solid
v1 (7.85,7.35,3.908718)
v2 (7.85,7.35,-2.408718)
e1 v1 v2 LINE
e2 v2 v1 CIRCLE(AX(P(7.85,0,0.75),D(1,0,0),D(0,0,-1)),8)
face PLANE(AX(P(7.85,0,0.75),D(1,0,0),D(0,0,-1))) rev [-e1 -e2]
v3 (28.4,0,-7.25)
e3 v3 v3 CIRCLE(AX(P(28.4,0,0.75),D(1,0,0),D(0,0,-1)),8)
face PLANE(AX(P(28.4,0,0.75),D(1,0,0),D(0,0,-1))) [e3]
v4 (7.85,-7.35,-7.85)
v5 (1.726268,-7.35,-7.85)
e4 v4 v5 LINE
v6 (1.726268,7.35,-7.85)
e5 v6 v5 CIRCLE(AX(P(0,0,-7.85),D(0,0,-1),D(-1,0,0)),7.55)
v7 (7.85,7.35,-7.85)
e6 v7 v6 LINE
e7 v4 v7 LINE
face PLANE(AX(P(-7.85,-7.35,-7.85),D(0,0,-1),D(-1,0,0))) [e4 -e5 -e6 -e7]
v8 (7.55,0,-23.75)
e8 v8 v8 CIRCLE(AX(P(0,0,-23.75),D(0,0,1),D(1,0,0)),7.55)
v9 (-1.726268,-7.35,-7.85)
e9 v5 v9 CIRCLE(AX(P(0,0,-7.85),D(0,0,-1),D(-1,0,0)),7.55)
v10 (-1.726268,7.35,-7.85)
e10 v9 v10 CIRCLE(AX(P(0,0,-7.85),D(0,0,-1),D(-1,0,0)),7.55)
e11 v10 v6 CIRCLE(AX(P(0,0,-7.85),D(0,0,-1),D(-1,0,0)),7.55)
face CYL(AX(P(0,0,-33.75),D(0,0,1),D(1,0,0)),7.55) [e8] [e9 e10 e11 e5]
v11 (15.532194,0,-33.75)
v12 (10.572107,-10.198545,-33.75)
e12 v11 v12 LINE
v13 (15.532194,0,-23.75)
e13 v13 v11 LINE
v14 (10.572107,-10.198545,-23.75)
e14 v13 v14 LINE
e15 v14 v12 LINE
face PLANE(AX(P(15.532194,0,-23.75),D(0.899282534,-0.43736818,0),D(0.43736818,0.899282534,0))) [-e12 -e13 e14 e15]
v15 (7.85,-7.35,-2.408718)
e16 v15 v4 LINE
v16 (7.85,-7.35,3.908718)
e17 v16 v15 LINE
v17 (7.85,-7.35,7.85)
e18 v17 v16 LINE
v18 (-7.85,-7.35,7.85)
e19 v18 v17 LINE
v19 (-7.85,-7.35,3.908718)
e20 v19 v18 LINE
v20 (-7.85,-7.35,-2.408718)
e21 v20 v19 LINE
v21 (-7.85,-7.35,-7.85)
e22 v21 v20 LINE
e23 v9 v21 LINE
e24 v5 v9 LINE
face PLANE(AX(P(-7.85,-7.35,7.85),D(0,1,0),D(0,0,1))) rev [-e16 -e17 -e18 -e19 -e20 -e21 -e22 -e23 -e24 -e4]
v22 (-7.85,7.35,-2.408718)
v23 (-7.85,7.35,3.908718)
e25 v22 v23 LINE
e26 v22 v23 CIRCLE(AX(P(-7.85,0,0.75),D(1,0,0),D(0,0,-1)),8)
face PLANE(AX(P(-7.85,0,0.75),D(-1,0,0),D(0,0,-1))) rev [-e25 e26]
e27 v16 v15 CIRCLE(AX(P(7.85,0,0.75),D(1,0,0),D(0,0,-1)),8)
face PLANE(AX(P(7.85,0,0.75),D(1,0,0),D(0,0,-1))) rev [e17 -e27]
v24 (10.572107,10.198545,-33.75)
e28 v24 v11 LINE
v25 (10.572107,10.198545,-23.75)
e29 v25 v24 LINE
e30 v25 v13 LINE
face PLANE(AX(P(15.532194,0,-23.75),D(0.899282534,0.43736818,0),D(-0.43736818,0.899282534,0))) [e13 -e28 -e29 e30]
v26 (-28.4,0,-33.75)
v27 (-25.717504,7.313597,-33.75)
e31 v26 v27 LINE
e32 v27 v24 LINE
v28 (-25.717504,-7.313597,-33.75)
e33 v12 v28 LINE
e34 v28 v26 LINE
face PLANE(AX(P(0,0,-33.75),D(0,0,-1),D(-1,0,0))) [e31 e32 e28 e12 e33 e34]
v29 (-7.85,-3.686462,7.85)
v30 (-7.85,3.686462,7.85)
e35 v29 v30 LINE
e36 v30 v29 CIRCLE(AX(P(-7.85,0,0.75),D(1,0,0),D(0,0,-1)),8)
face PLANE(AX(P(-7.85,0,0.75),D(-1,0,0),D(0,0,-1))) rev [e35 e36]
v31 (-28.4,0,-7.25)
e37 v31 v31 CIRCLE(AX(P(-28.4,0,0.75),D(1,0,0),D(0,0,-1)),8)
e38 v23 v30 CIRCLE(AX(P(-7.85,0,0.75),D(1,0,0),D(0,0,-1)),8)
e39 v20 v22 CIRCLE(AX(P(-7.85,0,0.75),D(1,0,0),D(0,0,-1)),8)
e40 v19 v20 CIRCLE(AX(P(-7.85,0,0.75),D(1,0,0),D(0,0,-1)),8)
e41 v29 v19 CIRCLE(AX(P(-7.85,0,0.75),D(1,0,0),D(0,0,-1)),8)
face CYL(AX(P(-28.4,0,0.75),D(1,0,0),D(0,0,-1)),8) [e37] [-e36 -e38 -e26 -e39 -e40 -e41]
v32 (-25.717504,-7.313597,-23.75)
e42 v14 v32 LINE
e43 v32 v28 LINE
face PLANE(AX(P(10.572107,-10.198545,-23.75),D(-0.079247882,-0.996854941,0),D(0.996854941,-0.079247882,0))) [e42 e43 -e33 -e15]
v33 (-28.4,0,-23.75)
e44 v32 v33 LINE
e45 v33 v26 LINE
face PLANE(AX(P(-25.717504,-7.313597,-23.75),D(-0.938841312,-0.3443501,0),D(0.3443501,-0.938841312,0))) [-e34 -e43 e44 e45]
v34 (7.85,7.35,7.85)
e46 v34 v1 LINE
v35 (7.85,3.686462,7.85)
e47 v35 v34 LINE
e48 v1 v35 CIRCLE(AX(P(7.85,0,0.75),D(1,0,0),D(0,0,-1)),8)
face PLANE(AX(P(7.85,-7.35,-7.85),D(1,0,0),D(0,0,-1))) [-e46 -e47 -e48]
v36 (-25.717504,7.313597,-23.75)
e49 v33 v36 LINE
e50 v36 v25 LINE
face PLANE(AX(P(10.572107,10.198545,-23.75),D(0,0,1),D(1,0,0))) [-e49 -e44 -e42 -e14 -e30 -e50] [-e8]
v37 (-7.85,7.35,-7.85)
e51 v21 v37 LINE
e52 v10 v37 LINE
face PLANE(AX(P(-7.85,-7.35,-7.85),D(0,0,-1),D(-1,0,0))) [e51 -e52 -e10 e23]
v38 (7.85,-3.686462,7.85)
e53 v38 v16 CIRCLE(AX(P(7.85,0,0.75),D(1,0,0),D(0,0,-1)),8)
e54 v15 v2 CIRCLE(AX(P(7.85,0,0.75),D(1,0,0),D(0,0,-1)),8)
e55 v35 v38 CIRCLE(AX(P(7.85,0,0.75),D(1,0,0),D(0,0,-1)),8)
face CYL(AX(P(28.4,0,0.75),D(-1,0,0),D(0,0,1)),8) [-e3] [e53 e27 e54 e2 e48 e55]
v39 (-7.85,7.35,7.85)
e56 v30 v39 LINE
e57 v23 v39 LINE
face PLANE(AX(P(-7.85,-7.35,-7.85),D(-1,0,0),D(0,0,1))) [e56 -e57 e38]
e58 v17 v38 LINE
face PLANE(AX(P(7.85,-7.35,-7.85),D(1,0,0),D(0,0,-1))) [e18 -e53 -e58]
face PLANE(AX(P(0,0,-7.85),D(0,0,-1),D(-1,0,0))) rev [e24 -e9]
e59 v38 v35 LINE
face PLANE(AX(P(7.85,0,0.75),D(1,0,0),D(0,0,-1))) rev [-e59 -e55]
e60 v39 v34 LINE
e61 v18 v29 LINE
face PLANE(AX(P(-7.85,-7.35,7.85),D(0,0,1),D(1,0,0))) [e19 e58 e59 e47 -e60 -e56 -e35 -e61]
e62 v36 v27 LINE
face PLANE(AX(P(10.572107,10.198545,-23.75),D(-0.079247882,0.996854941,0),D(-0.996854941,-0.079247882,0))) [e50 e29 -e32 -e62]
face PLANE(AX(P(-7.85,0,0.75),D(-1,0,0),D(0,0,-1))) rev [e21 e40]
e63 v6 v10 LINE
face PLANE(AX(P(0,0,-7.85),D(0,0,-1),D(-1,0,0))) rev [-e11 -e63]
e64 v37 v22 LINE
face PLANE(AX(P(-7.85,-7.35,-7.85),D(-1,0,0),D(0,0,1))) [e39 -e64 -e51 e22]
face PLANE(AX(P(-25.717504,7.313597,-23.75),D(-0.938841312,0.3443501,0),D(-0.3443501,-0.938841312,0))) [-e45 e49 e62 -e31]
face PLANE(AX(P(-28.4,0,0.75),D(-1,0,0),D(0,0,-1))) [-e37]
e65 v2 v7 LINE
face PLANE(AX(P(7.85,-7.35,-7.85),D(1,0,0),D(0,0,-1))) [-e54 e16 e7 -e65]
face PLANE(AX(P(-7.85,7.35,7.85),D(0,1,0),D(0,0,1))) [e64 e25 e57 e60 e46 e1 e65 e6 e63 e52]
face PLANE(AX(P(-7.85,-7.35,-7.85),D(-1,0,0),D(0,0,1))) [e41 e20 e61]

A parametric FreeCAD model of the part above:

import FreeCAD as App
import Part
import Sketcher


def add_polygon(sketch, points):
    """Adds a closed chain of lines whose ends are joined by coincident constraints."""
    first, n = sketch.GeometryCount, len(points)
    for a, b in zip(points, points[1:] + points[:1]):
        sketch.addGeometry(Part.LineSegment(App.Vector(*a, 0), App.Vector(*b, 0)), False)
    for i in range(n):
        sketch.addConstraint(Sketcher.Constraint("Coincident", first + i, 2, first + (i + 1) % n, 1))

doc = App.newDocument("Part")
body = doc.addObject("PartDesign::Body", "Body")

# Sketch on XZ plane
sketch1 = body.newObject("Sketcher::SketchObject", "Sketch")
sketch1.AttachmentSupport = (doc.getObject("XZ_Plane"), [""])
sketch1.MapMode = "FlatFace"
add_polygon(sketch1, [(-8, -8), (-8, 8), (8, 8), (8, -8)])  # lines 0-3
sketch1.addConstraint([
    Sketcher.Constraint("Vertical", 0),
    Sketcher.Constraint("Horizontal", 1),
    Sketcher.Constraint("Vertical", 2),
    Sketcher.Constraint("Horizontal", 3),
    Sketcher.Constraint("Symmetric", 0, 2, 2, 2, -1, 1),
    Sketcher.Constraint("Equal", 3, 0),
    Sketcher.Constraint("DistanceX", 1, 1, 1, 2, 15.7),
])
pad1 = body.newObject("PartDesign::Pad", "Pad")
pad1.Profile = sketch1
pad1.Type = "TwoLengths"
pad1.Length = 7.35
pad1.Length2 = 7.35
pad1.Reversed = True

# Sketch on YZ plane
sketch2 = body.newObject("Sketcher::SketchObject", "Sketch001")
sketch2.AttachmentSupport = (doc.getObject("YZ_Plane"), [""])
sketch2.MapMode = "FlatFace"
sketch2.AttachmentOffset = App.Placement(App.Vector(0, 0, 7.85), App.Rotation())
sketch2.addGeometry(Part.Circle(App.Vector(0, 1, 0), App.Vector(0, 0, 1), 8), False)
sketch2.addConstraint([
    Sketcher.Constraint("PointOnObject", 0, 3, -2),
    Sketcher.Constraint("Diameter", 0, 16.0),
    Sketcher.Constraint("DistanceY", -1, 1, 0, 3, 0.75),
])
pad2 = body.newObject("PartDesign::Pad", "Pad001")
pad2.Profile = sketch2
pad2.Length = 20.55

# Sketch on XY plane
sketch3 = body.newObject("Sketcher::SketchObject", "Sketch002")
sketch3.AttachmentSupport = (doc.getObject("XY_Plane"), [""])
sketch3.MapMode = "FlatFace"
sketch3.AttachmentOffset = App.Placement(App.Vector(0, 0, -7.85), App.Rotation())
sketch3.addGeometry(Part.Circle(App.Vector(0, 0, 0), App.Vector(0, 0, 1), 8), False)
sketch3.addConstraint([
    Sketcher.Constraint("Coincident", 0, 3, -1, 1),
    Sketcher.Constraint("Diameter", 0, 15.1),
])
pad3 = body.newObject("PartDesign::Pad", "Pad002")
pad3.Profile = sketch3
pad3.Length = 25.9
pad3.Reversed = True

# Sketch on XY plane
sketch4 = body.newObject("Sketcher::SketchObject", "Sketch003")
sketch4.AttachmentSupport = (doc.getObject("XY_Plane"), [""])
sketch4.MapMode = "FlatFace"
sketch4.AttachmentOffset = App.Placement(App.Vector(0, 0, -33.75), App.Rotation())
add_polygon(sketch4, [(16, 0), (11, -10), (-26, -7), (-28, 0), (-26, 7), (11, 10)])  # lines 0-5
sketch4.addConstraint([
    Sketcher.Constraint("Symmetric", 1, 2, 3, 2, -1),
    Sketcher.Constraint("Symmetric", 0, 2, 4, 2, -1),
    Sketcher.Constraint("PointOnObject", 2, 2, -1),
    Sketcher.Constraint("PointOnObject", 5, 2, -1),
    Sketcher.Constraint("DistanceX", 2, 2, -1, 1, 28.4),
    Sketcher.Constraint("DistanceX", 1, 2, 0, 2, 36.289612),
    Sketcher.Constraint("DistanceY", 0, 2, 1, 2, 2.884948),
    Sketcher.Constraint("DistanceY", 0, 2, 3, 2, 17.512142),
    Sketcher.Constraint("Distance", 0, 11.340757),
    Sketcher.Constraint("Distance", 2, 7.790024),
])
pad4 = body.newObject("PartDesign::Pad", "Pad003")
pad4.Profile = sketch4
pad4.Length = 10
doc.recompute()

mirrored = body.newObject("PartDesign::Mirrored", "Mirrored")
mirrored.Originals = [pad2]
mirrored.MirrorPlane = (doc.getObject("YZ_Plane"), [""])
body.Tip = mirrored

doc.recompute()
